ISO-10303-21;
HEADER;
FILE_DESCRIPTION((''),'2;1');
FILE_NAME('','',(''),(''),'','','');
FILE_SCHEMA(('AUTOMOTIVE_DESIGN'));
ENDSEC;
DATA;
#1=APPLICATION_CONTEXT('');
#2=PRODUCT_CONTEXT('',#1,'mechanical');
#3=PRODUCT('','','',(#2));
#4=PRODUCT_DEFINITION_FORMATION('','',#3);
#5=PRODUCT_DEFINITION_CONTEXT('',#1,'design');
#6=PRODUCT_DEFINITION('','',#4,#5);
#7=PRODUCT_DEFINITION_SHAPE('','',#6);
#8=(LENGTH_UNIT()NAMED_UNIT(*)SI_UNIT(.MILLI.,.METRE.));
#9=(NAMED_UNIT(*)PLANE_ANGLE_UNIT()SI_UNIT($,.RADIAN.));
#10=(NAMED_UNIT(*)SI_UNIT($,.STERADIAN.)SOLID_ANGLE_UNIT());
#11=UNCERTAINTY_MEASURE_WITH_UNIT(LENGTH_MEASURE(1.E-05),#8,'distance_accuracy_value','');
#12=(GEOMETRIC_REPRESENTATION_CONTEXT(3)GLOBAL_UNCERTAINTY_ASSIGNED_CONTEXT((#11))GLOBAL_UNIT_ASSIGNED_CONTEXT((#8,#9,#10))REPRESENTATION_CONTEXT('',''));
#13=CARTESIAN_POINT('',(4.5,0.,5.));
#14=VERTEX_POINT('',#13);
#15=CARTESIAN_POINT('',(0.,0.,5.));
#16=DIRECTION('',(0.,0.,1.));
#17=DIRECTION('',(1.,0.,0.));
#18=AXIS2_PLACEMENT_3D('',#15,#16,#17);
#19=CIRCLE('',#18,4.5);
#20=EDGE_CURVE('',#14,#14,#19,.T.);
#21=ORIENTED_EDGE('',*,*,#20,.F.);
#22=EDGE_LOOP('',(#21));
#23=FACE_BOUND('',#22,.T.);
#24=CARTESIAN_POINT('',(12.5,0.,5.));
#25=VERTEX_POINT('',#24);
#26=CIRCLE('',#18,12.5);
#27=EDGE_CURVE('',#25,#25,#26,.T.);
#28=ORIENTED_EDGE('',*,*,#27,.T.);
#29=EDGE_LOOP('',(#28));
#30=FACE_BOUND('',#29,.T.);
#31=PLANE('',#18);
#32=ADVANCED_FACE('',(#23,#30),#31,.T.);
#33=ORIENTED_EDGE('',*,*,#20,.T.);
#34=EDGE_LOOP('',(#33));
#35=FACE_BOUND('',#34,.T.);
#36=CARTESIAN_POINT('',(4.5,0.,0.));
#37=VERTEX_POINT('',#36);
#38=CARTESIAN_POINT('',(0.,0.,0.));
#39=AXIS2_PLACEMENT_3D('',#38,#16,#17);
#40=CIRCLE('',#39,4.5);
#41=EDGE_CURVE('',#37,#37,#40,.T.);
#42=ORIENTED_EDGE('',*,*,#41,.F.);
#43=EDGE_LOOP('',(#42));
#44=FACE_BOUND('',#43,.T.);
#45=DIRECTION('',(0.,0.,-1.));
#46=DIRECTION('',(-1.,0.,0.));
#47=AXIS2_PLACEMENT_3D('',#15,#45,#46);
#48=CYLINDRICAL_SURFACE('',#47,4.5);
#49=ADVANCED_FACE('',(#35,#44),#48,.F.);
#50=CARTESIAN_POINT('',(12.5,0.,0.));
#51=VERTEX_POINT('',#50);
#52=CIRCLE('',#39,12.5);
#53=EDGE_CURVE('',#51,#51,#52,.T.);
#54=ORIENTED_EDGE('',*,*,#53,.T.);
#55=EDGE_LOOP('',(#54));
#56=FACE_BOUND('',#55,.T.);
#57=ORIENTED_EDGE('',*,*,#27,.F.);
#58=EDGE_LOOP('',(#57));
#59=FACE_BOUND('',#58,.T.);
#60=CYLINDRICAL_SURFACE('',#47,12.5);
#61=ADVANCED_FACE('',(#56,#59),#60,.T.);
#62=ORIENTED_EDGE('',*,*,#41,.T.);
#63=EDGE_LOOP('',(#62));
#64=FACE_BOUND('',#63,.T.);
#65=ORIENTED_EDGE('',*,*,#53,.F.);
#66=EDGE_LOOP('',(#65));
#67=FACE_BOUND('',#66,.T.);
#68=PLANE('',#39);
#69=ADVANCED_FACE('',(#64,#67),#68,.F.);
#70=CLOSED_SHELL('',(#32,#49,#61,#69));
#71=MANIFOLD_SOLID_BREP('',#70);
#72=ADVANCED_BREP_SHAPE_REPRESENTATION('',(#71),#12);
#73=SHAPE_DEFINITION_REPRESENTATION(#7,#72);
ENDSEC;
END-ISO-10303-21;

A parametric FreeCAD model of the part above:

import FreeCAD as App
import Part
import Sketcher

V = App.Vector

doc = App.newDocument("Part")
params = doc.addObject("Spreadsheet::Sheet", "Params")
for row, (alias, value) in enumerate([
    ("sketch1_diameter", "25 mm"),
    ("sketch1_diameter2", "9 mm"),
    ("pad1_length", "5 mm"),
], start=1):
    params.set(f"A{row}", alias)
    params.set(f"B{row}", "=" + value)
    params.setAlias(f"B{row}", alias)

body = doc.addObject("PartDesign::Body", "Body")

sketch1 = body.newObject("Sketcher::SketchObject", "Sketch")
sketch1.AttachmentSupport = (doc.getObject("XY_Plane"), [""])
sketch1.MapMode = "FlatFace"
sketch1.addGeometry(Part.Circle(V(0, 0, 0), V(0, 0, 1), 12.5), False)
sketch1.addGeometry(Part.Circle(V(0, 0, 0), V(0, 0, 1), 4.5), False)
sketch1.addConstraint(Sketcher.Constraint("Coincident", 0, 3, -1, 1))
sketch1.addConstraint(Sketcher.Constraint("Coincident", 1, 3, -1, 1))
sketch1.addConstraint(Sketcher.Constraint("Diameter", 0, 25.0))
sketch1.addConstraint(Sketcher.Constraint("Diameter", 1, 9.0))
sketch1.setExpression("Constraints[2]", "Params.sketch1_diameter")
sketch1.setExpression("Constraints[3]", "Params.sketch1_diameter2")
pad1 = body.newObject("PartDesign::Pad", "Pad")
pad1.Profile = sketch1
pad1.setExpression("Length", "Params.pad1_length")

doc.recompute()
